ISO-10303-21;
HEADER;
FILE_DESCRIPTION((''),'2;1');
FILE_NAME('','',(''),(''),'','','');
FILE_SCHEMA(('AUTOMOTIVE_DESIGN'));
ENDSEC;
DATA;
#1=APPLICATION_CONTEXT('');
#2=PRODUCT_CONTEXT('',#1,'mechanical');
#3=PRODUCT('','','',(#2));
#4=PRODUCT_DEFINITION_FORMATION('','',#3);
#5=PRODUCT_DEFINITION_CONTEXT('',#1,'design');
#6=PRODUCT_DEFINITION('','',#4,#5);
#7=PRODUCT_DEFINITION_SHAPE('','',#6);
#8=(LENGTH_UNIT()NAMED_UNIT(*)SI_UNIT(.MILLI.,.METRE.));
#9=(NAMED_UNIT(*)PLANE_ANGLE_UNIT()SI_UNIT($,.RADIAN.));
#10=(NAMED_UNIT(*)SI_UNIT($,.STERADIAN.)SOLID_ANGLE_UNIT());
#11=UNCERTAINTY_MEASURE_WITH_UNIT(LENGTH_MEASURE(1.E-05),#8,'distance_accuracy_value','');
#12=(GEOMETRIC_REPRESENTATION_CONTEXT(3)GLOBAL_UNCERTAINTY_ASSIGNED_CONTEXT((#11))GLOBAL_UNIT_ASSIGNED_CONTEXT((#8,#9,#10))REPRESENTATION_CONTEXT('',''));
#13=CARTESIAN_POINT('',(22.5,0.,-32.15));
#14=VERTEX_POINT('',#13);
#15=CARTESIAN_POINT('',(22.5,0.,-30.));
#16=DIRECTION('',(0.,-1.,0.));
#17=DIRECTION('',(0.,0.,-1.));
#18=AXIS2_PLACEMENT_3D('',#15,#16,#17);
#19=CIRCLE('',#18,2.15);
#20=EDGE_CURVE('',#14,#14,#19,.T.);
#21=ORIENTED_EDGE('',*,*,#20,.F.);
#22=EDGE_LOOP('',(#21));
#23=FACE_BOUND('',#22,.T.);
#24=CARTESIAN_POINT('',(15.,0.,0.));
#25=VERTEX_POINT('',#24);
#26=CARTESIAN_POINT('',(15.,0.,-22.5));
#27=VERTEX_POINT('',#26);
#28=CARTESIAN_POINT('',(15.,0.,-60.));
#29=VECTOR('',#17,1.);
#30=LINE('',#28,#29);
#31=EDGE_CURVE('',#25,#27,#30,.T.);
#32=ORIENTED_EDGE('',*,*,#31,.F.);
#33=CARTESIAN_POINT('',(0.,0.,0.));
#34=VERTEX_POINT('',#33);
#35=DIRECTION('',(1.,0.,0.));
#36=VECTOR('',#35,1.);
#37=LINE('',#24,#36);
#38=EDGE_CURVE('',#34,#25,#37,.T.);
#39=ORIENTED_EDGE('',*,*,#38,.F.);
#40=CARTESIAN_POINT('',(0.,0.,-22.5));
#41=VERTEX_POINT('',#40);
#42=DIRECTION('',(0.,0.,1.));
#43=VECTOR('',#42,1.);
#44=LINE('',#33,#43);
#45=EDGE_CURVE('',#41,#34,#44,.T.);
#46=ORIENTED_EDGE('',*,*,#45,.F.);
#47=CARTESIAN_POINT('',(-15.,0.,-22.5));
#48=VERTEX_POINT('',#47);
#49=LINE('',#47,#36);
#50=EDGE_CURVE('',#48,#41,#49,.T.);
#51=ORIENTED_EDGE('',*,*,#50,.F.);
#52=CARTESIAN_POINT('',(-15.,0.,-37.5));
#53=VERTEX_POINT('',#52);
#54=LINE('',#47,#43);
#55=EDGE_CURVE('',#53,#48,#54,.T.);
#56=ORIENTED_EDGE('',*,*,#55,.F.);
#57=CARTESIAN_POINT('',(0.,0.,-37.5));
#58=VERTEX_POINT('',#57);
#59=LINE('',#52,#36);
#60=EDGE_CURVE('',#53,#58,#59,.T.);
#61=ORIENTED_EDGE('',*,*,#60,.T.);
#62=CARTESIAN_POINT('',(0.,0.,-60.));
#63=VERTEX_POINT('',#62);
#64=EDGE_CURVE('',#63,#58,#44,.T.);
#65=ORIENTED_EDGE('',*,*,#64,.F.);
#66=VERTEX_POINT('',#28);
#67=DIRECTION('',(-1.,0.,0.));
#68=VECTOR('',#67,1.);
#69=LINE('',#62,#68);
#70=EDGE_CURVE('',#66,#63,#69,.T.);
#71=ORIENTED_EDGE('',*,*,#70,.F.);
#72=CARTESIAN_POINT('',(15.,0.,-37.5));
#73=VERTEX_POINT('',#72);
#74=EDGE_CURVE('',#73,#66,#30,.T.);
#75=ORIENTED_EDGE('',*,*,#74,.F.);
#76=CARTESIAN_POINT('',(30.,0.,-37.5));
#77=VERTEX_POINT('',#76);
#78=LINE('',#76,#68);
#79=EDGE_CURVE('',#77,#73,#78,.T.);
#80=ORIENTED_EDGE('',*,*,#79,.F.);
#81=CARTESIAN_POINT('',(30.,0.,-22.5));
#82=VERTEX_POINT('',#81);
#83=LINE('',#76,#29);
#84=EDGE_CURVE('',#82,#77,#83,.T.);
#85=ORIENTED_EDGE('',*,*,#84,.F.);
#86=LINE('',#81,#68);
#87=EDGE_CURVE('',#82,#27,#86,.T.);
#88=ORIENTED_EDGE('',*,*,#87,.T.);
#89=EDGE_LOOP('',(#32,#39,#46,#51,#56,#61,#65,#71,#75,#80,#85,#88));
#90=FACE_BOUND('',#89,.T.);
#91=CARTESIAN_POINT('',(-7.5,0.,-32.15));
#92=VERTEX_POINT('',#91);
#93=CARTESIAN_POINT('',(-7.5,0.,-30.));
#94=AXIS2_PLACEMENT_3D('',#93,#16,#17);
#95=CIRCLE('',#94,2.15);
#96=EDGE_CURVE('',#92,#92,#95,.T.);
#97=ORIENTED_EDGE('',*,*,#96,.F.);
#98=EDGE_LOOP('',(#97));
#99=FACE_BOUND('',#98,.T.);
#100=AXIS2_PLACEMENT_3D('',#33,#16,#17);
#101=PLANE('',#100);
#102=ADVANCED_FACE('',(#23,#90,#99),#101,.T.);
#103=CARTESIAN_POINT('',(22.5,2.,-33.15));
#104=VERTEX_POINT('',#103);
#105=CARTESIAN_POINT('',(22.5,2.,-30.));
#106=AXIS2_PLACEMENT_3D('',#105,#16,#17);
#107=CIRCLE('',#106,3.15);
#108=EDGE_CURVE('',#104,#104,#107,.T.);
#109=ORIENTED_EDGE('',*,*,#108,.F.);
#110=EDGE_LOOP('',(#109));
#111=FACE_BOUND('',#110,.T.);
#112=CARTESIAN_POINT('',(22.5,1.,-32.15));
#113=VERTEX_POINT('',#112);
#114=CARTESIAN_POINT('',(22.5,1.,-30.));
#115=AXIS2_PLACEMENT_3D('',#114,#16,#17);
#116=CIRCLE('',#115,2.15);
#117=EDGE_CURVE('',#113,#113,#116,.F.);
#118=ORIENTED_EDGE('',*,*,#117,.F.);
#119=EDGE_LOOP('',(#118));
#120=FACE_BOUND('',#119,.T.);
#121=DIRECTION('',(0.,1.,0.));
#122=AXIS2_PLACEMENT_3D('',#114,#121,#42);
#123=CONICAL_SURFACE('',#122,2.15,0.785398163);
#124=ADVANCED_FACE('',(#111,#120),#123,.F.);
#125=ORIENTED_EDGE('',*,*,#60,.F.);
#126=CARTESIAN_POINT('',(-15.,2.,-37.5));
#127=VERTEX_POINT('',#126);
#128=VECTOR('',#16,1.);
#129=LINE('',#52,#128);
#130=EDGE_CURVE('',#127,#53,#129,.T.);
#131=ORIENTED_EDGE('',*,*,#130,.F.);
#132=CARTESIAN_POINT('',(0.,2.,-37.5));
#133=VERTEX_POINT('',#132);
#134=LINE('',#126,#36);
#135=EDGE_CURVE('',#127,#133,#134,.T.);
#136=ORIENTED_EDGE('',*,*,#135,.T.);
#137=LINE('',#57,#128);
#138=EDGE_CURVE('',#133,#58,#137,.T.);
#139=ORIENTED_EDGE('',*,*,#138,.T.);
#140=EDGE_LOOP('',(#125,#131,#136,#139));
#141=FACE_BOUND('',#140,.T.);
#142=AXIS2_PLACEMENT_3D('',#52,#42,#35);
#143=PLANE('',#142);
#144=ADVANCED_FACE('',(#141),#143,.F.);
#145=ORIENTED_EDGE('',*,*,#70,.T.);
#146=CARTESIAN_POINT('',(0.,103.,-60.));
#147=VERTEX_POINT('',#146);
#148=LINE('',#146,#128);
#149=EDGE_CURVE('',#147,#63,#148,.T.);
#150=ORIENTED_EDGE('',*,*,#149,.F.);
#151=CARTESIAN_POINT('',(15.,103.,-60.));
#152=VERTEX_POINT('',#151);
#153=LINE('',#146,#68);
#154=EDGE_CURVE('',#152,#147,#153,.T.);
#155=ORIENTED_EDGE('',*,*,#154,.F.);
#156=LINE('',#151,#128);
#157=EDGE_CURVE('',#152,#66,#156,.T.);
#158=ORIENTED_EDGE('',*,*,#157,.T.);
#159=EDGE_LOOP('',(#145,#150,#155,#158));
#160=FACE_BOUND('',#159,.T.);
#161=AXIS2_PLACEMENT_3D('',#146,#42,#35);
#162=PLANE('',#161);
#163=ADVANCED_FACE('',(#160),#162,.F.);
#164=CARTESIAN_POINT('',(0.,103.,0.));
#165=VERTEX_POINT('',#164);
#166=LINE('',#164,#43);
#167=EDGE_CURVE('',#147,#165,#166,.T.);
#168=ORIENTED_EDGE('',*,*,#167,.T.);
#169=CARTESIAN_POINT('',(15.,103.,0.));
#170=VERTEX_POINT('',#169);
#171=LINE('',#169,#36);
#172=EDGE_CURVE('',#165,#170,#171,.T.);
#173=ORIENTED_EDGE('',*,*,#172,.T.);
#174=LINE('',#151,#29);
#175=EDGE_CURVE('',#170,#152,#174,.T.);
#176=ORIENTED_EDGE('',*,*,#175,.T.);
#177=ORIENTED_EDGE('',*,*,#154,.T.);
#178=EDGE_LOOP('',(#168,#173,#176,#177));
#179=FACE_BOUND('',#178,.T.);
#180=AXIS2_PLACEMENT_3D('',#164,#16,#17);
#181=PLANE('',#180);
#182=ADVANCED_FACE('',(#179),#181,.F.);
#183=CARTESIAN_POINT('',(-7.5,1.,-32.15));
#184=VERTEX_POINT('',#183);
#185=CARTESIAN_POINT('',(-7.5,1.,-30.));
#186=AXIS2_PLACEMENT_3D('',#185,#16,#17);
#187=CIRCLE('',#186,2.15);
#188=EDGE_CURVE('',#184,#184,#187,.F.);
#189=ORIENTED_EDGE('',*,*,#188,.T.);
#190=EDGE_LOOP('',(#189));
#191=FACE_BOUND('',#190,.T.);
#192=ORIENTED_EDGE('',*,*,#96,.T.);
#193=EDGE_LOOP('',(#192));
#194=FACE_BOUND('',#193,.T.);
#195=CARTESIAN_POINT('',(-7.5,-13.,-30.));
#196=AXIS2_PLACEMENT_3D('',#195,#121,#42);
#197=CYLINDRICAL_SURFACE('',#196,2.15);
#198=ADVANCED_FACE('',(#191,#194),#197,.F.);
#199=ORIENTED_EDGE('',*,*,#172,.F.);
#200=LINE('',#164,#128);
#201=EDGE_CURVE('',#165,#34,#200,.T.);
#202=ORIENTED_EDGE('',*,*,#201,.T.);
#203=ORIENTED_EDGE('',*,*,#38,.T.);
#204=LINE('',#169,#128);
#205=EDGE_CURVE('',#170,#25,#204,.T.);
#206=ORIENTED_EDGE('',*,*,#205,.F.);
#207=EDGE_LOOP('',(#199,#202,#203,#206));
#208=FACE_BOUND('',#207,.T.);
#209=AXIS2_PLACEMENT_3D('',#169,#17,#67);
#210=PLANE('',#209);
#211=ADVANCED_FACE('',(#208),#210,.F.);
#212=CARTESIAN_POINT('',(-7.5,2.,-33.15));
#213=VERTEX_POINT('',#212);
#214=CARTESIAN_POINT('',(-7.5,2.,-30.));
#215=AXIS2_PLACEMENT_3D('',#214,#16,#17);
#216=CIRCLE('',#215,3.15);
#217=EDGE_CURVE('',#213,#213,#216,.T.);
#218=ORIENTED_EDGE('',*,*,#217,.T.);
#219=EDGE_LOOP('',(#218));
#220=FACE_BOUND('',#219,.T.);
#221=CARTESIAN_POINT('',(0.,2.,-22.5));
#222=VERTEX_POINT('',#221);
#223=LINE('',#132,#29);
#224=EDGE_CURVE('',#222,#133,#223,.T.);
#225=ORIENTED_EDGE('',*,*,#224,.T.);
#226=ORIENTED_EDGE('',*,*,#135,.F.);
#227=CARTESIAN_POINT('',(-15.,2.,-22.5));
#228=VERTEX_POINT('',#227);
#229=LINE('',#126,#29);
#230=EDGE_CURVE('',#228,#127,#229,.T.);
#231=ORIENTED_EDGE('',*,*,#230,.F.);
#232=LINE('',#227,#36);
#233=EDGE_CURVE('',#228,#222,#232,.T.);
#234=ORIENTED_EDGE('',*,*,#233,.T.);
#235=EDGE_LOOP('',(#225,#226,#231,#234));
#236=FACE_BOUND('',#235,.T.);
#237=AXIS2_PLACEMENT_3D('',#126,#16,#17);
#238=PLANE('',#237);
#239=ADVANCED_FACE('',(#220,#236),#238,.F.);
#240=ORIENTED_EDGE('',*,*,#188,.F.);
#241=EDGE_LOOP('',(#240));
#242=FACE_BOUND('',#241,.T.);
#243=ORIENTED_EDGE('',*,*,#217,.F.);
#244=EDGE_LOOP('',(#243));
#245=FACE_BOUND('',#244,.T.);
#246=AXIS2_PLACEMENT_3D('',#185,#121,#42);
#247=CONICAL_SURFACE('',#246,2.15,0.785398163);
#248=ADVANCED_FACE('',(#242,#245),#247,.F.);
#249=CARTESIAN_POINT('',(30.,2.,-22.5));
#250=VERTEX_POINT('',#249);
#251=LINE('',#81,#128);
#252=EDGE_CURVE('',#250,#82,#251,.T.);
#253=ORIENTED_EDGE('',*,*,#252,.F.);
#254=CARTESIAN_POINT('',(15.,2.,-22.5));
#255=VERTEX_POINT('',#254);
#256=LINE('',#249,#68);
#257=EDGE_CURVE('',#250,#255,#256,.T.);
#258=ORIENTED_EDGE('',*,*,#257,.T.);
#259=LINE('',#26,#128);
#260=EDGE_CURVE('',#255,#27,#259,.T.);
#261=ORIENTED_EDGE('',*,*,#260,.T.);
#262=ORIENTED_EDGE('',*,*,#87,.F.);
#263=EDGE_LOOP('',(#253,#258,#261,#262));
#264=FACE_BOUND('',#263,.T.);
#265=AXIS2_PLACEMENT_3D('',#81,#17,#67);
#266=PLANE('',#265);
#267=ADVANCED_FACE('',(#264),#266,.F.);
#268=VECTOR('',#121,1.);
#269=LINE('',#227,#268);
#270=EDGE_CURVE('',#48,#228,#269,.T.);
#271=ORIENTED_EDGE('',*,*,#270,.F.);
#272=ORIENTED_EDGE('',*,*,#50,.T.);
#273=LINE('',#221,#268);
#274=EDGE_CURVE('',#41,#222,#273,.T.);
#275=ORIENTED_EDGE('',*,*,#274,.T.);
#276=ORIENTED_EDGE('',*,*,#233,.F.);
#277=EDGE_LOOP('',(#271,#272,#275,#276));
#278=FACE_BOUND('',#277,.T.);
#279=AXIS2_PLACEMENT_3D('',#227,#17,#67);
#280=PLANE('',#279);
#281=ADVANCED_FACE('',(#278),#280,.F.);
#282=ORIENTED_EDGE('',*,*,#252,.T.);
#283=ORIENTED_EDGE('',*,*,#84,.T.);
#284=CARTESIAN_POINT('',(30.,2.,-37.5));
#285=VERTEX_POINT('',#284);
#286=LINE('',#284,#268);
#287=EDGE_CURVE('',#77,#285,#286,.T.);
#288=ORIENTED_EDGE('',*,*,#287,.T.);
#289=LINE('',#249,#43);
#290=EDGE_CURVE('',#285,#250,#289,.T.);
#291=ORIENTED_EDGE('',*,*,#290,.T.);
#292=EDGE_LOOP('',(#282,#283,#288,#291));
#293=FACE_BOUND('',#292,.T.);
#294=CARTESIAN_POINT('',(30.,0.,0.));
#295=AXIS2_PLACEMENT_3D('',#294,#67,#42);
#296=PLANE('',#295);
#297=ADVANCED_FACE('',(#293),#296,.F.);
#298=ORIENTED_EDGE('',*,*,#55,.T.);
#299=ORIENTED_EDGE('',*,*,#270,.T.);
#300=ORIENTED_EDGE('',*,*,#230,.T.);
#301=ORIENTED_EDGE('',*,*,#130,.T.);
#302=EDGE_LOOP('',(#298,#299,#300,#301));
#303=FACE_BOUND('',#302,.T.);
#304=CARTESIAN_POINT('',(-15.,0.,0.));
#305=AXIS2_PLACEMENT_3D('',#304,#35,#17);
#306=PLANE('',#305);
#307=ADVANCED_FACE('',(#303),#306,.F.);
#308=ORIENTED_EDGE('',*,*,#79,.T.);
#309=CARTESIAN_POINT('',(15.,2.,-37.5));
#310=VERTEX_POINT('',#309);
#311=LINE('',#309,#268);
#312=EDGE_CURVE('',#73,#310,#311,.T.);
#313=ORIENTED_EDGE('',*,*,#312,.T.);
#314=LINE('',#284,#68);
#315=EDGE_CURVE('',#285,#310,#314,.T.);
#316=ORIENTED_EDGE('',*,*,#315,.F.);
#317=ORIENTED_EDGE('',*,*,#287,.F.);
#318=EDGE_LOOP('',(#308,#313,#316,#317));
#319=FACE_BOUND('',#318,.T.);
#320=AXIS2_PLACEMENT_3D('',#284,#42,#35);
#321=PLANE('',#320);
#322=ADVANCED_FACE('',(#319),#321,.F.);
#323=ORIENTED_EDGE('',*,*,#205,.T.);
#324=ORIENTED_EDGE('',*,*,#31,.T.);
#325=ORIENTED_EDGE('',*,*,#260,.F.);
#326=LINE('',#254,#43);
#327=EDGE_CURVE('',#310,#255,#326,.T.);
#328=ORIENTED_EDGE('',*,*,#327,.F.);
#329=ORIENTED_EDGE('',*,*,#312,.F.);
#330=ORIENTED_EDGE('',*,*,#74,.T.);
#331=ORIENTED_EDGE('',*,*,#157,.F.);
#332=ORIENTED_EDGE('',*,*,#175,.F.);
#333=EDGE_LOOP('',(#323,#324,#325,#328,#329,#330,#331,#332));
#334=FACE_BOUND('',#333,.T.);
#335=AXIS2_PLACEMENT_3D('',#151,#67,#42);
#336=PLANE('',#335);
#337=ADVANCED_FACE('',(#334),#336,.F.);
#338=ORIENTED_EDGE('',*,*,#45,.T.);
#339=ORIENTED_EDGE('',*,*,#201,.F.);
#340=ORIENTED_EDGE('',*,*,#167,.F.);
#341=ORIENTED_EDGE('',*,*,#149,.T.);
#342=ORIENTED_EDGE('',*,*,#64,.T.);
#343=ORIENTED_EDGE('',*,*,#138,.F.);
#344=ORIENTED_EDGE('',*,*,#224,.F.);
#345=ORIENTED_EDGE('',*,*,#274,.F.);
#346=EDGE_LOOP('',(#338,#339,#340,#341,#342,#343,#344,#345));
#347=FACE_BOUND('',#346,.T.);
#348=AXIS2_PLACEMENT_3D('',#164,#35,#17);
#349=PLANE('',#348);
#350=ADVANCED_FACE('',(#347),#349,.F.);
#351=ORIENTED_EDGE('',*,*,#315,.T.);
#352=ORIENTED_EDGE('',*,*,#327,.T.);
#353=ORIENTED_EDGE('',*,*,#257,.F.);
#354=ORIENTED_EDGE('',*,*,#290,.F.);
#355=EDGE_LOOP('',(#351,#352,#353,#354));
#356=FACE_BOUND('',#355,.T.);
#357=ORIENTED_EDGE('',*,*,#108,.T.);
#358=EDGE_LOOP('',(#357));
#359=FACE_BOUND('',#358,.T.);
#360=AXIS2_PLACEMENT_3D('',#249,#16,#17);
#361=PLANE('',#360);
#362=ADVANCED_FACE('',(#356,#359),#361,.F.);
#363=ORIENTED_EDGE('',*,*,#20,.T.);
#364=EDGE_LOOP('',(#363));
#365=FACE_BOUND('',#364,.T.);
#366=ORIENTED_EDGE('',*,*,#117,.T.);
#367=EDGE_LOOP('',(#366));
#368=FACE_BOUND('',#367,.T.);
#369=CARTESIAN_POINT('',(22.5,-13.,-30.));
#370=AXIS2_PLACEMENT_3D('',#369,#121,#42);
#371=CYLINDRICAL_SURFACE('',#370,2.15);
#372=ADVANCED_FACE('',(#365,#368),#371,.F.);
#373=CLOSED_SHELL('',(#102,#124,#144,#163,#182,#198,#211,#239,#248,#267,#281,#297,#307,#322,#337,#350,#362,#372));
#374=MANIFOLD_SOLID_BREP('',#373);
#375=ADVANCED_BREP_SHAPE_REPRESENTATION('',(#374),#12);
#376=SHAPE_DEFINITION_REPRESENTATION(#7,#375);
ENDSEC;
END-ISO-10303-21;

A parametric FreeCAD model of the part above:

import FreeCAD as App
import Part
import Sketcher

V = App.Vector
Q = App.Units.Quantity


def edges_at(feature, points):
    """Names of the edges that pass closest to the given points."""
    edges = feature.Shape.Edges
    near = lambda p: min(range(len(edges)), key=lambda i: edges[i].distToShape(Part.Vertex(*p))[0])
    return sorted({f"Edge{near(p) + 1}" for p in points})


def add_polygon(sketch, points):
    """Adds a closed chain of lines whose ends are joined by coincident constraints."""
    first, n = sketch.GeometryCount, len(points)
    for a, b in zip(points, points[1:] + points[:1]):
        sketch.addGeometry(Part.LineSegment(App.Vector(*a, 0), App.Vector(*b, 0)), False)
    for i in range(n):
        sketch.addConstraint(Sketcher.Constraint("Coincident", first + i, 2, first + (i + 1) % n, 1))

doc = App.newDocument("Part")
params = doc.addObject("Spreadsheet::Sheet", "Params")
for row, (alias, value) in enumerate([
    ("sketch1_width", "15 mm"),
    ("sketch1_height", "60 mm"),
    ("pad1_length", "103 mm"),
    ("sketch2_width", "2 mm"),
    ("sketch2_height", "15 mm"),
    ("pad2_length", "15 mm"),
    ("sketch3_width", "2 mm"),
    ("sketch3_height", "15 mm"),
    ("pad3_length", "15 mm"),
    ("sketch4_diameter", "4.3 mm"),
    ("pocket1_length", "15 mm"),
    ("chamfer_size", "1 mm"),
], start=1):
    params.set(f"A{row}", alias)
    params.set(f"B{row}", "=" + value)
    params.setAlias(f"B{row}", alias)

body = doc.addObject("PartDesign::Body", "Body")

sketch1 = body.newObject("Sketcher::SketchObject", "Sketch")
sketch1.AttachmentSupport = (doc.getObject("XZ_Plane"), [""])
sketch1.MapMode = "FlatFace"
add_polygon(sketch1, [(0, -60), (0, 0), (15, 0), (15, -60)])
sketch1.addConstraint(Sketcher.Constraint("Vertical", 0))
sketch1.addConstraint(Sketcher.Constraint("Horizontal", 1))
sketch1.addConstraint(Sketcher.Constraint("Vertical", 2))
sketch1.addConstraint(Sketcher.Constraint("Horizontal", 3))
sketch1.addConstraint(Sketcher.Constraint("Coincident", 0, 2, -1, 1))
sketch1.addConstraint(Sketcher.Constraint("DistanceX", 1, 1, 1, 2, Q("15 mm")))
sketch1.addConstraint(Sketcher.Constraint("DistanceY", 0, 1, 0, 2, Q("60 mm")))
sketch1.setExpression("Constraints[9]", "Params.sketch1_width")
sketch1.setExpression("Constraints[10]", "Params.sketch1_height")
pad1 = body.newObject("PartDesign::Pad", "Pad")
pad1.Profile = sketch1
pad1.setExpression("Length", "Params.pad1_length")
pad1.Reversed = True

sketch2 = body.newObject("Sketcher::SketchObject", "Sketch001")
sketch2.AttachmentSupport = (doc.getObject("YZ_Plane"), [""])
sketch2.MapMode = "FlatFace"
sketch2.AttachmentOffset = App.Placement(V(0, 0, 15), App.Rotation())
add_polygon(sketch2, [(2, -22.5), (0, -22.5), (0, -37.5), (2, -37.5)])
sketch2.addConstraint(Sketcher.Constraint("Horizontal", 0))
sketch2.addConstraint(Sketcher.Constraint("Vertical", 1))
sketch2.addConstraint(Sketcher.Constraint("Horizontal", 2))
sketch2.addConstraint(Sketcher.Constraint("Vertical", 3))
sketch2.addConstraint(Sketcher.Constraint("PointOnObject", 0, 2, -2))
sketch2.addConstraint(Sketcher.Constraint("DistanceX", 0, 2, 0, 1, Q("2 mm")))
sketch2.addConstraint(Sketcher.Constraint("DistanceY", 1, 2, 1, 1, Q("15 mm")))
sketch2.addConstraint(Sketcher.Constraint("DistanceY", 0, 2, -1, 1, Q("22.5 mm")))
sketch2.setExpression("Constraints[9]", "Params.sketch2_width")
sketch2.setExpression("Constraints[10]", "Params.sketch2_height")
pad2 = body.newObject("PartDesign::Pad", "Pad001")
pad2.Profile = sketch2
pad2.setExpression("Length", "Params.pad2_length")

sketch3 = body.newObject("Sketcher::SketchObject", "Sketch002")
sketch3.AttachmentSupport = (doc.getObject("YZ_Plane"), [""])
sketch3.MapMode = "FlatFace"
add_polygon(sketch3, [(2, -37.5), (0, -37.5), (0, -22.5), (2, -22.5)])
sketch3.addConstraint(Sketcher.Constraint("Horizontal", 0))
sketch3.addConstraint(Sketcher.Constraint("Vertical", 1))
sketch3.addConstraint(Sketcher.Constraint("Horizontal", 2))
sketch3.addConstraint(Sketcher.Constraint("Vertical", 3))
sketch3.addConstraint(Sketcher.Constraint("PointOnObject", 0, 2, -2))
sketch3.addConstraint(Sketcher.Constraint("DistanceX", 0, 2, 0, 1, Q("2 mm")))
sketch3.addConstraint(Sketcher.Constraint("DistanceY", 1, 1, 1, 2, Q("15 mm")))
sketch3.addConstraint(Sketcher.Constraint("DistanceY", 0, 2, -1, 1, Q("37.5 mm")))
sketch3.setExpression("Constraints[9]", "Params.sketch3_width")
sketch3.setExpression("Constraints[10]", "Params.sketch3_height")
pad3 = body.newObject("PartDesign::Pad", "Pad002")
pad3.Profile = sketch3
pad3.setExpression("Length", "Params.pad3_length")
pad3.Reversed = True

sketch4 = body.newObject("Sketcher::SketchObject", "Sketch003")
sketch4.AttachmentSupport = (doc.getObject("XZ_Plane"), [""])
sketch4.MapMode = "FlatFace"
sketch4.AttachmentOffset = App.Placement(V(0, 0, -2), App.Rotation())
sketch4.addGeometry(Part.Circle(V(22.5, -30, 0), V(0, 0, 1), 2.15), False)
sketch4.addGeometry(Part.Circle(V(-7.5, -30, 0), V(0, 0, 1), 2.15), False)
sketch4.addConstraint(Sketcher.Constraint("Equal", 0, 1))
sketch4.addConstraint(Sketcher.Constraint("Horizontal", 0, 3, 1, 3))
sketch4.addConstraint(Sketcher.Constraint("Diameter", 0, Q("4.3 mm")))
sketch4.addConstraint(Sketcher.Constraint("DistanceY", 0, 3, -1, 1, Q("30 mm")))
sketch4.addConstraint(Sketcher.Constraint("DistanceX", 1, 3, 0, 3, Q("30 mm")))
sketch4.addConstraint(Sketcher.Constraint("DistanceX", -1, 1, 0, 3, Q("22.5 mm")))
sketch4.setExpression("Constraints[2]", "Params.sketch4_diameter")
pocket1 = body.newObject("PartDesign::Pocket", "Pocket")
pocket1.Profile = sketch4
pocket1.setExpression("Length", "Params.pocket1_length")
pocket1.Reversed = True
doc.recompute()

chamfer = body.newObject("PartDesign::Chamfer", "Chamfer")
chamfer.Base = (pocket1, edges_at(pocket1, [(22.5, 2, -32.15), (-7.5, 2, -32.15)]))
chamfer.setExpression("Size", "Params.chamfer_size")

doc.recompute()
